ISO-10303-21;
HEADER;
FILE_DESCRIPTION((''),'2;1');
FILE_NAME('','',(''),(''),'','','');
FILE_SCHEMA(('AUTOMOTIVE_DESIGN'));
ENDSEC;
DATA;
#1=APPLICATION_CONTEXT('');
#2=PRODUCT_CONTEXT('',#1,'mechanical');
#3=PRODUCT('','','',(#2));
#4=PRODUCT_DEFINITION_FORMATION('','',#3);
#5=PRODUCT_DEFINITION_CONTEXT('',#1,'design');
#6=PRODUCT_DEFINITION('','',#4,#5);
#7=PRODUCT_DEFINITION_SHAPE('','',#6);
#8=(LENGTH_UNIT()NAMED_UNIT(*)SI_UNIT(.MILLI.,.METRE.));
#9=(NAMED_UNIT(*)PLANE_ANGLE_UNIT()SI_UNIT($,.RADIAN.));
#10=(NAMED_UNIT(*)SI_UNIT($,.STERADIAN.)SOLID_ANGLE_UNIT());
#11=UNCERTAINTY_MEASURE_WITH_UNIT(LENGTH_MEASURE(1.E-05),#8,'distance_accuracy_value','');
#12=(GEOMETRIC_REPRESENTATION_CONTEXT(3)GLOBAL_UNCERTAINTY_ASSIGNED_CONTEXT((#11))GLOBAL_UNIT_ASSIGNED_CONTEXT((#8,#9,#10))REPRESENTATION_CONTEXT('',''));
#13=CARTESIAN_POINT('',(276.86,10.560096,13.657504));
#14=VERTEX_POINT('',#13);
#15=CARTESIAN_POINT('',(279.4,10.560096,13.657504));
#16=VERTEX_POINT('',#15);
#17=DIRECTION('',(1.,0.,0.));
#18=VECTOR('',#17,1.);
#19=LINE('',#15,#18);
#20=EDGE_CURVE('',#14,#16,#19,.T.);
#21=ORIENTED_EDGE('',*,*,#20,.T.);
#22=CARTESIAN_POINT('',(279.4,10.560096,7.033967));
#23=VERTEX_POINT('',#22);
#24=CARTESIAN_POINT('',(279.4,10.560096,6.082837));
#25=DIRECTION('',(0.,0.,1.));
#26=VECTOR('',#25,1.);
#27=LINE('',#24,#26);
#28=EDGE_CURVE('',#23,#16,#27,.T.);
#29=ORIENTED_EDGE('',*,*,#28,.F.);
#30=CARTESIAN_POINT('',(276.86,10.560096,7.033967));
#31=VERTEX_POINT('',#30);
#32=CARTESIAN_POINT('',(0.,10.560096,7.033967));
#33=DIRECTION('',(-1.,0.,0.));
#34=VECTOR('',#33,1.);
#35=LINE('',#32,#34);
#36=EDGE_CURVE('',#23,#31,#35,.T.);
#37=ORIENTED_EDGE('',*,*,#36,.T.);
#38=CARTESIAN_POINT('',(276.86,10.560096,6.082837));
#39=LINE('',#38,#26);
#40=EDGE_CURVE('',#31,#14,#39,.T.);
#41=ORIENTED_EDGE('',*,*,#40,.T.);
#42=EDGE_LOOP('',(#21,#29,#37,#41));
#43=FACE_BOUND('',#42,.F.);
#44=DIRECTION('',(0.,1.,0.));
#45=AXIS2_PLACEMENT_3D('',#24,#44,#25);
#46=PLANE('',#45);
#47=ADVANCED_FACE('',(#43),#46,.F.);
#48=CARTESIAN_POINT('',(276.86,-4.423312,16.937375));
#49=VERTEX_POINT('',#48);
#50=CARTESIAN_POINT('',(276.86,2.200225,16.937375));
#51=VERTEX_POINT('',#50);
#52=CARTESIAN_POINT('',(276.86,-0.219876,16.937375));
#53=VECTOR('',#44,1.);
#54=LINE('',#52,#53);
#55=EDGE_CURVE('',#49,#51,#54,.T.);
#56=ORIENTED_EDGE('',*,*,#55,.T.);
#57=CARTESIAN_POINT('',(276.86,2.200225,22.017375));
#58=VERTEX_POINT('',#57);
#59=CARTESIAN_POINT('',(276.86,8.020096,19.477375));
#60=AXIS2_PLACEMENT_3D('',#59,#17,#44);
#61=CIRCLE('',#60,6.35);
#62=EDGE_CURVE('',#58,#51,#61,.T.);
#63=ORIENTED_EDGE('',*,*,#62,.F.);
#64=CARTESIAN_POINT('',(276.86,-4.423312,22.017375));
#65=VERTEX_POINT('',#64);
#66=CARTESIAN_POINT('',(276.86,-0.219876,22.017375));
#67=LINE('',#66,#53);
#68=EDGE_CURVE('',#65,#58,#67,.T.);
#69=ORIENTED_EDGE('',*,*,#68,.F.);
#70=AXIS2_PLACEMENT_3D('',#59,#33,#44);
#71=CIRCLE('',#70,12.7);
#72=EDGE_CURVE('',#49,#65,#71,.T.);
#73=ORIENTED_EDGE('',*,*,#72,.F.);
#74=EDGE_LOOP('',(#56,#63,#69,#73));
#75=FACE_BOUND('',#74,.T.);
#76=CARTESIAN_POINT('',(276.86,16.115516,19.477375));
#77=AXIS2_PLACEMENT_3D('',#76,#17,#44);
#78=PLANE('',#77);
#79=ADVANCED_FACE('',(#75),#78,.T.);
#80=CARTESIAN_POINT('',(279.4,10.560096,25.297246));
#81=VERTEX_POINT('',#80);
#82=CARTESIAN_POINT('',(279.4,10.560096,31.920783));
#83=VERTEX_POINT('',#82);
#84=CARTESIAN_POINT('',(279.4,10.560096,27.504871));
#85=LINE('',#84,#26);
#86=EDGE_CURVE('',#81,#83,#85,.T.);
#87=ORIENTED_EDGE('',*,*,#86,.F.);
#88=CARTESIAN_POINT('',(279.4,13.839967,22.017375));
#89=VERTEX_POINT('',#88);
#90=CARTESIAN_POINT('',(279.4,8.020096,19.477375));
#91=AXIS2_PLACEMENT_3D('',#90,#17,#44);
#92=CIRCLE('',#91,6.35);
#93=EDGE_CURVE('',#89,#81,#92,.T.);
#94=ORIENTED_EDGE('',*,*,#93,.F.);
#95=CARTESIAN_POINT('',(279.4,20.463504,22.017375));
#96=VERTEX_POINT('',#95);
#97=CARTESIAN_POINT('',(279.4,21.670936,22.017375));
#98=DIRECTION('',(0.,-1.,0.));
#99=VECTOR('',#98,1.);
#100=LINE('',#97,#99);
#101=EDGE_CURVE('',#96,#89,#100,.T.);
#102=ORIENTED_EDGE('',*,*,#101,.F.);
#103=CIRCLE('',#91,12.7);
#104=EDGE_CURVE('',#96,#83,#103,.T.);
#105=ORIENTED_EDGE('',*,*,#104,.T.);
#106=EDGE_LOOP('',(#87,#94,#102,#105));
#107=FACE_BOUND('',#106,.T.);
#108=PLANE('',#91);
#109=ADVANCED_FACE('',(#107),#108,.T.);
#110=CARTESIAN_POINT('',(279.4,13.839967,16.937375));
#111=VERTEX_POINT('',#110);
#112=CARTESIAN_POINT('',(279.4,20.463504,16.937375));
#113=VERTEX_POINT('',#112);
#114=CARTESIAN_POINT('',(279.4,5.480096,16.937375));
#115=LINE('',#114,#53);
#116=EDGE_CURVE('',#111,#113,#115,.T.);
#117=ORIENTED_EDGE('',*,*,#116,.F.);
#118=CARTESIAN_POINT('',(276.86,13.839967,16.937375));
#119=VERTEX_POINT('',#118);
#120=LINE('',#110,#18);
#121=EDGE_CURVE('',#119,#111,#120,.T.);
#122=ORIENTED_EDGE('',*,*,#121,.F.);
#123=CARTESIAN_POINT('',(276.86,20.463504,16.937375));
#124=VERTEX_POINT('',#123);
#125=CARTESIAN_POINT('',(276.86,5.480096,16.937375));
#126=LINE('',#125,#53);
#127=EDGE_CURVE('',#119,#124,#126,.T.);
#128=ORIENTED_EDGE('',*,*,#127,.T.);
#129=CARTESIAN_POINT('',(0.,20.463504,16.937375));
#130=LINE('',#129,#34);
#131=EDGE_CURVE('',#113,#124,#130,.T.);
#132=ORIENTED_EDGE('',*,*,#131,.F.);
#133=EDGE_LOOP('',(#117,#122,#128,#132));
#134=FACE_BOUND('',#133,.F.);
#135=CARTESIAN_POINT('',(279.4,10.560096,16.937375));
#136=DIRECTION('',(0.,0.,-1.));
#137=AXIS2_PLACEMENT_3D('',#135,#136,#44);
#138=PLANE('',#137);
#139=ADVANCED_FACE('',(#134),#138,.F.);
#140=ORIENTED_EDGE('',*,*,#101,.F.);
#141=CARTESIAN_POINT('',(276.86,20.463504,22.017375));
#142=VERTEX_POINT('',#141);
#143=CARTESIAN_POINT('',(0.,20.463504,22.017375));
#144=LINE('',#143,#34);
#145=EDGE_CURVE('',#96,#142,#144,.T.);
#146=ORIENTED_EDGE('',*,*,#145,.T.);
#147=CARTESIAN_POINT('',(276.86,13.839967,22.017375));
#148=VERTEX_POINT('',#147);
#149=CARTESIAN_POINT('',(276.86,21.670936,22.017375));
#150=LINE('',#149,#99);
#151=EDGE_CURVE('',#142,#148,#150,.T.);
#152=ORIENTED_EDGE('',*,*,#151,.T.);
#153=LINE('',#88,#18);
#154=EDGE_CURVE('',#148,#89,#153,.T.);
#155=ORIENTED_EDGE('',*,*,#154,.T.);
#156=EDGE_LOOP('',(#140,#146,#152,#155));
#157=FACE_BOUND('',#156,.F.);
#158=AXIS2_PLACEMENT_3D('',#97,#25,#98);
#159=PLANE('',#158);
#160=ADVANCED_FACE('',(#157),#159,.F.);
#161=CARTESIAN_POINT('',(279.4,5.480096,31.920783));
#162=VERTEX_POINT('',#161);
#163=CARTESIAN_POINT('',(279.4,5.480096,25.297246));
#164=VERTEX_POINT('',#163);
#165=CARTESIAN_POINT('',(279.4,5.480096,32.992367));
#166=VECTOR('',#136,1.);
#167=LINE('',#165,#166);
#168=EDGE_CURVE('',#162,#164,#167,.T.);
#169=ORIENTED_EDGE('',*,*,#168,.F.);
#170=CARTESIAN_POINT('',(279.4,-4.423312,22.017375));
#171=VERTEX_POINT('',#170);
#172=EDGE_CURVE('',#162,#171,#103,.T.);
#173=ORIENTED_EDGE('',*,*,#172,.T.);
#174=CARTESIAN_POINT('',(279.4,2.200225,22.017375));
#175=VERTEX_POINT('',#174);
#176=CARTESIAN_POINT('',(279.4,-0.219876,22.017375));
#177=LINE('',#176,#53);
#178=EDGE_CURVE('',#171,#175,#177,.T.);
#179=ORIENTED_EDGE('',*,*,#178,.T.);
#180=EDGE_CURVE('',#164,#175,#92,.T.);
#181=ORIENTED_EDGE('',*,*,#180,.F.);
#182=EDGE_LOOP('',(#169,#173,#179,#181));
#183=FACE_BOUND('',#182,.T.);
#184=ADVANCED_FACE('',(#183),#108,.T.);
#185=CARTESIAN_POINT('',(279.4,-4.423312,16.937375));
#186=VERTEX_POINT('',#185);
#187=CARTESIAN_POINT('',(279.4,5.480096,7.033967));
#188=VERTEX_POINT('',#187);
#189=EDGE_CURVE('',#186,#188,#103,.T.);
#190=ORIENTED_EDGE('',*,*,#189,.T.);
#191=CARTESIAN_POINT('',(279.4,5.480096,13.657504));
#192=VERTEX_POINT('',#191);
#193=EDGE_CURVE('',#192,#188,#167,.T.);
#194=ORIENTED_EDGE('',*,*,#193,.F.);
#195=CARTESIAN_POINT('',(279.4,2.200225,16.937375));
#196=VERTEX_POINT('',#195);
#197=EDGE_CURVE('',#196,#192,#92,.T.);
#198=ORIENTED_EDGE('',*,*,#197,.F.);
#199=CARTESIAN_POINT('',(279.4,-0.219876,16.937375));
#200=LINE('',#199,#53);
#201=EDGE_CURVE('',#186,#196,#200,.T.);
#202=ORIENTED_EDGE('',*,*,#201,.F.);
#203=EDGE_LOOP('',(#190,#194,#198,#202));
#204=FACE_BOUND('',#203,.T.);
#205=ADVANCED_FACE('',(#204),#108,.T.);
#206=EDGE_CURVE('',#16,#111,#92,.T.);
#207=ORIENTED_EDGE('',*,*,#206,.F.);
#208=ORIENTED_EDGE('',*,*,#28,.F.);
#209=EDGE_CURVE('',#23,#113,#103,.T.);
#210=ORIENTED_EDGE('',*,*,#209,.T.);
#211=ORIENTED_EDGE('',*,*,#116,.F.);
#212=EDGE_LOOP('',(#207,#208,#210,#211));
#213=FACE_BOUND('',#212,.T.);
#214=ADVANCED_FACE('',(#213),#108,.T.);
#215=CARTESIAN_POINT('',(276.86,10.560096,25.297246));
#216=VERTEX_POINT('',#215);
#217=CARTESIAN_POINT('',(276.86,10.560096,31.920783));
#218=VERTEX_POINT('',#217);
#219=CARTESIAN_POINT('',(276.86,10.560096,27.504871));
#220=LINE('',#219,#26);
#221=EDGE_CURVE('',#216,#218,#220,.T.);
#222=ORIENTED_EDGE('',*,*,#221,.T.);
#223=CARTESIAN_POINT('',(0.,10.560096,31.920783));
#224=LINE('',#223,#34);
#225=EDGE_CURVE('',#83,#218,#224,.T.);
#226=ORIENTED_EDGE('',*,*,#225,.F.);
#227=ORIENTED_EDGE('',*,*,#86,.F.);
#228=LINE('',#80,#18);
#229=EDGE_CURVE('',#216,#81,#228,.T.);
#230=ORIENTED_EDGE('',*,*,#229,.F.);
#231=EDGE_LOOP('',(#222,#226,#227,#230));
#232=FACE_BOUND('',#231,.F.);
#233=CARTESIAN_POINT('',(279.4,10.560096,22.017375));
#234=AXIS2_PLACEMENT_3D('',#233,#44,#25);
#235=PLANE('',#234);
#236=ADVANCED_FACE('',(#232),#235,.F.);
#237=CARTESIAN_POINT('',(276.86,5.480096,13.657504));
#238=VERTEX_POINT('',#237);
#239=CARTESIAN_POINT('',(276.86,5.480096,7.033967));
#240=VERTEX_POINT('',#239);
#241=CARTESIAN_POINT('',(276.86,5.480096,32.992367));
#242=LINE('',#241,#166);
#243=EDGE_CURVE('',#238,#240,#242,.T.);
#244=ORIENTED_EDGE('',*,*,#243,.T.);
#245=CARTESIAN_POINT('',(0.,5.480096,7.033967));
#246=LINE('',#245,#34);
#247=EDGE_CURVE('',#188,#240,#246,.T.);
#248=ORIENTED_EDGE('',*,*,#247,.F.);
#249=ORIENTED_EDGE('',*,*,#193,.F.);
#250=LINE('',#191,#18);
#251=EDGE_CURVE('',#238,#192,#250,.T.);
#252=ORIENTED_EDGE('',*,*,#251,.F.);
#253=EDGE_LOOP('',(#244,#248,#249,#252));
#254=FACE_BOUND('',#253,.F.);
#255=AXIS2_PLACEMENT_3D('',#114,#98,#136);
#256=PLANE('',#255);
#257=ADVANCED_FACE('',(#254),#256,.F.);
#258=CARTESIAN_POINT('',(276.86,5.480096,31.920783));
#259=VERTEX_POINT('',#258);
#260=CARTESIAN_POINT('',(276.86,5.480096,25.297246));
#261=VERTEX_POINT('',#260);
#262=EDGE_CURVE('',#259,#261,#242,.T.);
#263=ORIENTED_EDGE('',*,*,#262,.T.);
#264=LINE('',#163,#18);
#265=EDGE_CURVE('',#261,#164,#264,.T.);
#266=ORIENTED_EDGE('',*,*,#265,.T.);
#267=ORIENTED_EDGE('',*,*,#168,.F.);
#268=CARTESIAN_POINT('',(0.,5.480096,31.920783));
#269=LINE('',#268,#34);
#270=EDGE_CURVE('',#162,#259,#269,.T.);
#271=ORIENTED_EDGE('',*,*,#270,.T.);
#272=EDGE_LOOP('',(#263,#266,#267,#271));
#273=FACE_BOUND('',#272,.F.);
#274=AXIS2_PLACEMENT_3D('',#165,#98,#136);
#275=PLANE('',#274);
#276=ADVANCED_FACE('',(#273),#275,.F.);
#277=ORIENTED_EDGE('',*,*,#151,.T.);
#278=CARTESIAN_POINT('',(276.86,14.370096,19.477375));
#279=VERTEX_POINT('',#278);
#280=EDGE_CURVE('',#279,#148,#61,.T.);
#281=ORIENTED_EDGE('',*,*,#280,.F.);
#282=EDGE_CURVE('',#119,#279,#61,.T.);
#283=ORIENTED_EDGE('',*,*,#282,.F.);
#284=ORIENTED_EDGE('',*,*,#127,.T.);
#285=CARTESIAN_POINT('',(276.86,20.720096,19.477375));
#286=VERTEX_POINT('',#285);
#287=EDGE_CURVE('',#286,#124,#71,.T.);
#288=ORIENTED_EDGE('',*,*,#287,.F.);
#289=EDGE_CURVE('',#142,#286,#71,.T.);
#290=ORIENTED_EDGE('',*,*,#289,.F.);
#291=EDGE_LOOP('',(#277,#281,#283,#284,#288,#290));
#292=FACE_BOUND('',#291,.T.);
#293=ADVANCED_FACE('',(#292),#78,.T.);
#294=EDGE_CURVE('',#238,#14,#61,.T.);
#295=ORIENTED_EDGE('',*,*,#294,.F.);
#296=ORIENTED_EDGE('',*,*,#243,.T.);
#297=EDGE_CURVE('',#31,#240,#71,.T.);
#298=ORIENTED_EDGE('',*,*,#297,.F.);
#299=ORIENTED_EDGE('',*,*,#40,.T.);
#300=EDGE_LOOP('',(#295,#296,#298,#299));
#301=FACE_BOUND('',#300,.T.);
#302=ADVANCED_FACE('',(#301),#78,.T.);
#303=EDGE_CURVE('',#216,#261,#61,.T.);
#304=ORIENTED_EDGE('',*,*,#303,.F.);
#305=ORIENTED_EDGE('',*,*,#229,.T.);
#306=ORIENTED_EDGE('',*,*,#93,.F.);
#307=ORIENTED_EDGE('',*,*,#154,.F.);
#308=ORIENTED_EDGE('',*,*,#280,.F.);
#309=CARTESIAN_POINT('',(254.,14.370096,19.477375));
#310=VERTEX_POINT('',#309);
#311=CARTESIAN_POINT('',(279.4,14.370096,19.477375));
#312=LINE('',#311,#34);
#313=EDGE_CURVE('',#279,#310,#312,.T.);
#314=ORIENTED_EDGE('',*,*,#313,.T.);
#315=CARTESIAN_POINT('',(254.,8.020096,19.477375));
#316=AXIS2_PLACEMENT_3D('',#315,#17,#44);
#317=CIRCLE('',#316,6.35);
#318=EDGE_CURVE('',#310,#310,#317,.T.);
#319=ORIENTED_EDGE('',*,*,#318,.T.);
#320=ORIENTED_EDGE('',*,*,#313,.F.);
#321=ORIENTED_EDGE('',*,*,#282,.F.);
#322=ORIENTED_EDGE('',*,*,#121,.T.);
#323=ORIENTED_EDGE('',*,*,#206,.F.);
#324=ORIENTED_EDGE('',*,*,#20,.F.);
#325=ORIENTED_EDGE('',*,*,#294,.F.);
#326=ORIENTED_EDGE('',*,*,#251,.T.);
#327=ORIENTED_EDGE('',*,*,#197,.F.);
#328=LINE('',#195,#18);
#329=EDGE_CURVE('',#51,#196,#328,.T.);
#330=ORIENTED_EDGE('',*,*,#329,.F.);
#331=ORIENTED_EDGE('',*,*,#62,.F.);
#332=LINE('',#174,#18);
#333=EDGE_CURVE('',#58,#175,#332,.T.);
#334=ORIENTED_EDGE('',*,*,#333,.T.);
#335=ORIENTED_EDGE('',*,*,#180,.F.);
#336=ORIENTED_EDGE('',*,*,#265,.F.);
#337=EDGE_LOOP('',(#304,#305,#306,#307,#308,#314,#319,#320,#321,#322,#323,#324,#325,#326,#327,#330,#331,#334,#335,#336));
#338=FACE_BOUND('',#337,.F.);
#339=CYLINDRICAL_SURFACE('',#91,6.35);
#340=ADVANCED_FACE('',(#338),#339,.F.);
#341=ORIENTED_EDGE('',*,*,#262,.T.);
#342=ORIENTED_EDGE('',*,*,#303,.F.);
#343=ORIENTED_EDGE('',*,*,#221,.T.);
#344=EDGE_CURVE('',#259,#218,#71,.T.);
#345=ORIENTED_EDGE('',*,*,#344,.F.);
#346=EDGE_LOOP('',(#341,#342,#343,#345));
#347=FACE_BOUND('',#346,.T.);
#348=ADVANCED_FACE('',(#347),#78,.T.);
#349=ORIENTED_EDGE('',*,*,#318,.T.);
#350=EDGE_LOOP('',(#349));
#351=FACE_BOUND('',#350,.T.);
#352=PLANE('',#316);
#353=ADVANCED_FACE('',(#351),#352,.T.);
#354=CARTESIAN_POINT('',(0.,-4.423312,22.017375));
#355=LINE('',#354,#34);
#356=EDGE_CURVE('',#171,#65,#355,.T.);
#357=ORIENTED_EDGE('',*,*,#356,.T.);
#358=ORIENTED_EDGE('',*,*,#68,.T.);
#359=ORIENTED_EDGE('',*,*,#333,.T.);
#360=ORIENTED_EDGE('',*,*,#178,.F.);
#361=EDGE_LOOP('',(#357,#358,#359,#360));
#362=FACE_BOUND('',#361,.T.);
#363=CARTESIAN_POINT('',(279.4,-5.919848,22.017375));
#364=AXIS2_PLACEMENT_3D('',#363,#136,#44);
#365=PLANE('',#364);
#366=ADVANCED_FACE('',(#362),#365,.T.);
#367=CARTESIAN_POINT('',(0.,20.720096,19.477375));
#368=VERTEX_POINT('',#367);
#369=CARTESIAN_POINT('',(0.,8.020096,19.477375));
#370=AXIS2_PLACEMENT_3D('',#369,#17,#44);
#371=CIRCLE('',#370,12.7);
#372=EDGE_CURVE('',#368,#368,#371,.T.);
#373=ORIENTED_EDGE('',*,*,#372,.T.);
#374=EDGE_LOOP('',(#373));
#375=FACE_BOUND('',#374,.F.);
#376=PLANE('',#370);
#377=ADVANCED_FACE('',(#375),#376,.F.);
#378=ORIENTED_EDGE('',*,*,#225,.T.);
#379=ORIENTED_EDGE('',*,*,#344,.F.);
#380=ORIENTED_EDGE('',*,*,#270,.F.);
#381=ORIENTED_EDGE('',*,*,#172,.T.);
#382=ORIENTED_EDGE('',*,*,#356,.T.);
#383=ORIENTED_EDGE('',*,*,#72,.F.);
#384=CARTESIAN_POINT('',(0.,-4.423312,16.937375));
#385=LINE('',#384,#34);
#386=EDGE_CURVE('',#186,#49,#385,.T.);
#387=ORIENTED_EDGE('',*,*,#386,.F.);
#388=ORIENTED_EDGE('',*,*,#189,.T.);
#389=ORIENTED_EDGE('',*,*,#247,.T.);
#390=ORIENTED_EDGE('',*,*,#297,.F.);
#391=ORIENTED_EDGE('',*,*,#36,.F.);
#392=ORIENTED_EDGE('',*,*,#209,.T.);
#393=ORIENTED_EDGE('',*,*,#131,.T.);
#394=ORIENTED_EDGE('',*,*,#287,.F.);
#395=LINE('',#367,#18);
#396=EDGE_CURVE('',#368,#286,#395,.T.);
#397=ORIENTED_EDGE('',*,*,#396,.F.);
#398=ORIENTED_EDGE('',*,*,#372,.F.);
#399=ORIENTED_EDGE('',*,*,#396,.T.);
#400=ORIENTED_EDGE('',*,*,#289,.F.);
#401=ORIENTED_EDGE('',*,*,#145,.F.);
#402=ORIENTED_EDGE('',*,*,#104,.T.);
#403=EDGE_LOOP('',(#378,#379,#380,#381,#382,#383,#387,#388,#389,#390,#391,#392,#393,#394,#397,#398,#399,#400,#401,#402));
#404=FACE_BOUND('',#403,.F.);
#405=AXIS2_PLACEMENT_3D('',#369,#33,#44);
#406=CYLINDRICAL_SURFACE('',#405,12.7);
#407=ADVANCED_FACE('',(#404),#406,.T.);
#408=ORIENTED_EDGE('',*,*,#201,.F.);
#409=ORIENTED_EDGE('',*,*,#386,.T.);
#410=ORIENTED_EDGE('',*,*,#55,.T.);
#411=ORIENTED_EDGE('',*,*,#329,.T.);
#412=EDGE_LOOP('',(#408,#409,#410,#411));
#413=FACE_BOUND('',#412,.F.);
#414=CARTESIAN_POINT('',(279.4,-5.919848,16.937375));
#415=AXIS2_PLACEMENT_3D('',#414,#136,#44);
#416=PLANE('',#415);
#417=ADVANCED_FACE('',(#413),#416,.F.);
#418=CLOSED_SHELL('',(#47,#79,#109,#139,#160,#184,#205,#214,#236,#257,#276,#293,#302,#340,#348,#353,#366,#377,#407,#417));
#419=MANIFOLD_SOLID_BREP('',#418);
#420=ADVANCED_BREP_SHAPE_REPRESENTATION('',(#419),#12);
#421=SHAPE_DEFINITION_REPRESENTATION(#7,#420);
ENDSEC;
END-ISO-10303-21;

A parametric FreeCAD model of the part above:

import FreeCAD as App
import Part
import Sketcher

V = App.Vector
Q = App.Units.Quantity

doc = App.newDocument("Part")
body = doc.addObject("PartDesign::Body", "Body")

# Sketch on YZ plane
sketch1 = body.newObject("Sketcher::SketchObject", "Sketch")
sketch1.AttachmentSupport = (doc.getObject("YZ_Plane"), [""])
sketch1.MapMode = "FlatFace"
sketch1.addGeometry(Part.Circle(V(8.020096, 19.477375, 0), V(0, 0, 1), 12.7), False)
sketch1.addConstraint(Sketcher.Constraint("Diameter", 0, Q("1 in")))
sketch1.addConstraint(Sketcher.Constraint("DistanceX", -1, 1, 0, 3, 8.020096))
sketch1.addConstraint(Sketcher.Constraint("DistanceY", -1, 1, 0, 3, 19.477375))
pad1 = body.newObject("PartDesign::Pad", "Pad")
pad1.Profile = sketch1
pad1.Length = Q("11 in")

# Sketch on YZ plane
sketch2 = body.newObject("Sketcher::SketchObject", "Sketch001")
sketch2.AttachmentSupport = (doc.getObject("YZ_Plane"), [""])
sketch2.MapMode = "FlatFace"
sketch2.AttachmentOffset = App.Placement(V(0, 0, 11 * 25.4), App.Rotation())
sketch2.addGeometry(Part.Circle(V(8.020096, 19.477375, 0), V(0, 0, 1), 6.35), False)
sketch2.addConstraint(Sketcher.Constraint("Diameter", 0, Q("0.5 in")))
sketch2.addConstraint(Sketcher.Constraint("DistanceX", -1, 1, 0, 3, 8.020096))
sketch2.addConstraint(Sketcher.Constraint("DistanceY", -1, 1, 0, 3, 19.477375))
pocket1 = body.newObject("PartDesign::Pocket", "Pocket")
pocket1.Profile = sketch2
pocket1.Length = Q("1 in")

# Sketch on YZ plane
sketch3 = body.newObject("Sketcher::SketchObject", "Sketch002")
sketch3.AttachmentSupport = (doc.getObject("YZ_Plane"), [""])
sketch3.MapMode = "FlatFace"
sketch3.AttachmentOffset = App.Placement(V(0, 0, 11 * 25.4), App.Rotation())
sketch3.addGeometry(Part.LineSegment(V(21.670936, 16.937375, 0), V(21.670936, 22.017375, 0)), False)
sketch3.addGeometry(Part.LineSegment(V(21.670936, 22.017375, 0), V(10.560096, 22.017375, 0)), False)
sketch3.addGeometry(Part.LineSegment(V(10.560096, 22.017375, 0), V(10.560096, 32.992367, 0)), False)
sketch3.addGeometry(Part.LineSegment(V(10.560096, 32.992367, 0), V(5.480096, 32.992367, 0)), False)
sketch3.addGeometry(Part.LineSegment(V(5.480096, 32.992367, 0), V(5.480096, 22.017375, 0)), False)
sketch3.addGeometry(Part.LineSegment(V(5.480096, 22.017375, 0), V(-5.919848, 22.017375, 0)), False)
sketch3.addGeometry(Part.LineSegment(V(-5.919848, 22.017375, 0), V(-5.919848, 16.937375, 0)), False)
sketch3.addGeometry(Part.LineSegment(V(-5.919848, 16.937375, 0), V(5.480096, 16.937375, 0)), False)
sketch3.addGeometry(Part.LineSegment(V(5.480096, 16.937375, 0), V(5.480096, 6.082837, 0)), False)
sketch3.addGeometry(Part.LineSegment(V(5.480096, 6.082837, 0), V(10.560096, 6.082837, 0)), False)
sketch3.addGeometry(Part.LineSegment(V(10.560096, 6.082837, 0), V(10.560096, 16.937375, 0)), False)
sketch3.addGeometry(Part.LineSegment(V(10.560096, 16.937375, 0), V(21.670936, 16.937375, 0)), False)
sketch3.addConstraint(Sketcher.Constraint("Coincident", 0, 2, 1, 1))
sketch3.addConstraint(Sketcher.Constraint("Coincident", 1, 2, 2, 1))
sketch3.addConstraint(Sketcher.Constraint("Coincident", 2, 2, 3, 1))
sketch3.addConstraint(Sketcher.Constraint("Coincident", 3, 2, 4, 1))
sketch3.addConstraint(Sketcher.Constraint("Coincident", 4, 2, 5, 1))
sketch3.addConstraint(Sketcher.Constraint("Coincident", 5, 2, 6, 1))
sketch3.addConstraint(Sketcher.Constraint("Coincident", 6, 2, 7, 1))
sketch3.addConstraint(Sketcher.Constraint("Coincident", 7, 2, 8, 1))
sketch3.addConstraint(Sketcher.Constraint("Coincident", 8, 2, 9, 1))
sketch3.addConstraint(Sketcher.Constraint("Coincident", 9, 2, 10, 1))
sketch3.addConstraint(Sketcher.Constraint("Coincident", 10, 2, 11, 1))
sketch3.addConstraint(Sketcher.Constraint("Coincident", 11, 2, 0, 1))
sketch3.addConstraint(Sketcher.Constraint("Vertical", 0))
sketch3.addConstraint(Sketcher.Constraint("Horizontal", 1))
sketch3.addConstraint(Sketcher.Constraint("Vertical", 2))
sketch3.addConstraint(Sketcher.Constraint("Horizontal", 3))
sketch3.addConstraint(Sketcher.Constraint("Vertical", 4))
sketch3.addConstraint(Sketcher.Constraint("Horizontal", 5))
sketch3.addConstraint(Sketcher.Constraint("Vertical", 6))
sketch3.addConstraint(Sketcher.Constraint("Horizontal", 7))
sketch3.addConstraint(Sketcher.Constraint("Vertical", 8))
sketch3.addConstraint(Sketcher.Constraint("Horizontal", 9))
sketch3.addConstraint(Sketcher.Constraint("Vertical", 10))
sketch3.addConstraint(Sketcher.Constraint("Horizontal", 11))
sketch3.addConstraint(Sketcher.Constraint("Horizontal", 1, 2, 4, 2))
sketch3.addConstraint(Sketcher.Constraint("Horizontal", 7, 2, 10, 2))
sketch3.addConstraint(Sketcher.Constraint("Vertical", 4, 2, 7, 2))
sketch3.addConstraint(Sketcher.Constraint("Vertical", 2, 2, 9, 2))
sketch3.addConstraint(Sketcher.Constraint("Equal", 9, 0))
sketch3.addConstraint(Sketcher.Constraint("DistanceX", 3, 2, 3, 1, Q("0.2 in")))
sketch3.addConstraint(Sketcher.Constraint("DistanceX", 1, 2, 1, 1, 11.11084))
sketch3.addConstraint(Sketcher.Constraint("DistanceX", 5, 2, 5, 1, 11.399944))
sketch3.addConstraint(Sketcher.Constraint("DistanceY", 2, 1, 2, 2, 10.974992))
sketch3.addConstraint(Sketcher.Constraint("DistanceY", 8, 2, 8, 1, 10.854538))
sketch3.addConstraint(Sketcher.Constraint("DistanceX", -1, 1, 0, 2, 21.670936))
sketch3.addConstraint(Sketcher.Constraint("DistanceY", -1, 1, 0, 2, 22.017375))
pocket2 = body.newObject("PartDesign::Pocket", "Pocket001")
pocket2.Profile = sketch3
pocket2.Length = Q("0.1 in")

doc.recompute()
